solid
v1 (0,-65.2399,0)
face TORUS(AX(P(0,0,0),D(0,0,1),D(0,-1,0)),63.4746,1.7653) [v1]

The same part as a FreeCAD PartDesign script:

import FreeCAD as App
import Part
import Sketcher

V = App.Vector
Q = App.Units.Quantity

doc = App.newDocument("Part")
body = doc.addObject("PartDesign::Body", "Body")

# Sketch on YZ plane
sketch1 = doc.addObject("Sketcher::SketchObject", "Sketch")
body.addObject(sketch1)
sketch1.AttachmentSupport = (doc.YZ_Plane, [""])
sketch1.MapMode = "FlatFace"
sketch1.addGeometry(Part.Circle(V(63.5, 0, 0), V(0, 0, 1), 1.8), False)
sketch1.addConstraint([
    Sketcher.Constraint("PointOnObject", 0, 3, -1),
    Sketcher.Constraint("Diameter", 0, Q("0.139 in")),
    Sketcher.Constraint("DistanceX", -1, 1, 0, 3, Q("2.499 in")),
])
revolution = doc.addObject("PartDesign::Revolution", "Revolution")
body.addObject(revolution)
revolution.Profile = sketch1
revolution.ReferenceAxis = (sketch1, ["V_Axis"])
revolution.Angle = 360

doc.recompute()
